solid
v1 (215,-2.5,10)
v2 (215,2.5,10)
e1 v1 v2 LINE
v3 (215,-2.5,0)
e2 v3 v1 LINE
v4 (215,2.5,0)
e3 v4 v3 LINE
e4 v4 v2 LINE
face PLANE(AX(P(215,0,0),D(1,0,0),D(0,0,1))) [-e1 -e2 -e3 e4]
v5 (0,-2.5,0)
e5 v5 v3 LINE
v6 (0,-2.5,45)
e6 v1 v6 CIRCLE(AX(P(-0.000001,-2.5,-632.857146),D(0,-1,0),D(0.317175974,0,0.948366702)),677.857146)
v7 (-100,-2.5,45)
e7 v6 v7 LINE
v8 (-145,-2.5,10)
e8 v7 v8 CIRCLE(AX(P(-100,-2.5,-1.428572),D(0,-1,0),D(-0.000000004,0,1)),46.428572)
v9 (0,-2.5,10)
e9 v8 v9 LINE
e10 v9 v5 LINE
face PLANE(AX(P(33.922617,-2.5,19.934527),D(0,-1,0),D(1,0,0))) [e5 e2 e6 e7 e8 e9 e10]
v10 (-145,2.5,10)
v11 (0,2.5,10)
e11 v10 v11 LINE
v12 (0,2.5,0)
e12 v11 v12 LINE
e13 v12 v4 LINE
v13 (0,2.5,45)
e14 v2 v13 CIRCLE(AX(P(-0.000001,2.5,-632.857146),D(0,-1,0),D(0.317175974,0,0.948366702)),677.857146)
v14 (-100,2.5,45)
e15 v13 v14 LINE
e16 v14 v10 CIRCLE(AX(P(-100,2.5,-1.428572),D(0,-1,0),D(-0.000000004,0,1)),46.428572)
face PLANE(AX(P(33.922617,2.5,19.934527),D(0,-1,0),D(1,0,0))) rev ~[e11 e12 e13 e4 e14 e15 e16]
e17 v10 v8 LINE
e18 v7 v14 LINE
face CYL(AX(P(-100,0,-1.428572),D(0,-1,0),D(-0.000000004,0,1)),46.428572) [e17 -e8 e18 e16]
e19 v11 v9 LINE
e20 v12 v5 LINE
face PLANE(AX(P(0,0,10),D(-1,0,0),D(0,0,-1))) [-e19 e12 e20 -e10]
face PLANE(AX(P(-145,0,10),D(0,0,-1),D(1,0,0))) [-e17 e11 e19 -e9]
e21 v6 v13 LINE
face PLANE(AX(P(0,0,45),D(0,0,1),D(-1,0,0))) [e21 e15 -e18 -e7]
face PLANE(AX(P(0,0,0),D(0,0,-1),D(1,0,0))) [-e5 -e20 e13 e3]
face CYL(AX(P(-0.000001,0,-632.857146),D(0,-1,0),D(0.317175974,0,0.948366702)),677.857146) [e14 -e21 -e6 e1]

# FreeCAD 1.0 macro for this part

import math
import FreeCAD as App
import Part
import Sketcher
from FreeCAD import Vector

doc = App.newDocument("Part")
body = doc.addObject("PartDesign::Body", "Body")

sketch1 = body.newObject("Sketcher::SketchObject", "Sketch")
sketch1.AttachmentSupport = (doc.getObject("XZ_Plane"), [""])
sketch1.MapMode = "FlatFace"
sketch1.addGeometry(Part.ArcOfCircle(Part.Circle(Vector(-100, -1, 0), Vector(0, 0, 1), 46), math.radians(90), math.radians(166)), False)
sketch1.addGeometry(Part.LineSegment(Vector(-145, 10, 0), Vector(0, 10, 0)), False)
sketch1.addGeometry(Part.LineSegment(Vector(0, 10, 0), Vector(0, 0, 0)), False)
sketch1.addGeometry(Part.LineSegment(Vector(0, 0, 0), Vector(215, 0, 0)), False)
sketch1.addGeometry(Part.LineSegment(Vector(215, 0, 0), Vector(215, 10, 0)), False)
sketch1.addGeometry(Part.ArcOfCircle(Part.Circle(Vector(0, -633, 0), Vector(0, 0, 1), 678), math.radians(71.51), math.radians(90)), False)
sketch1.addGeometry(Part.LineSegment(Vector(0, 45, 0), Vector(-100, 45, 0)), False)
sketch1.addConstraint(Sketcher.Constraint("Coincident", 0, 2, 1, 1))
sketch1.addConstraint(Sketcher.Constraint("Coincident", 1, 2, 2, 1))
sketch1.addConstraint(Sketcher.Constraint("Coincident", 2, 2, 3, 1))
sketch1.addConstraint(Sketcher.Constraint("Coincident", 3, 2, 4, 1))
sketch1.addConstraint(Sketcher.Constraint("Coincident", 4, 2, 5, 1))
sketch1.addConstraint(Sketcher.Constraint("Tangent", 5, 2, 6, 1))
sketch1.addConstraint(Sketcher.Constraint("Tangent", 6, 2, 0, 1))
sketch1.addConstraint(Sketcher.Constraint("Horizontal", 1))
sketch1.addConstraint(Sketcher.Constraint("Vertical", 2))
sketch1.addConstraint(Sketcher.Constraint("Horizontal", 3))
sketch1.addConstraint(Sketcher.Constraint("Vertical", 4))
sketch1.addConstraint(Sketcher.Constraint("Horizontal", 6))
sketch1.addConstraint(Sketcher.Constraint("Coincident", 2, 2, -1, 1))
sketch1.addConstraint(Sketcher.Constraint("PointOnObject", 5, 3, -2))
sketch1.addConstraint(Sketcher.Constraint("Horizontal", 1, 2, 4, 2))
sketch1.addConstraint(Sketcher.Constraint("DistanceX", 1, 1, 1, 2, 145.0))
sketch1.addConstraint(Sketcher.Constraint("DistanceX", 3, 1, 3, 2, 215.0))
sketch1.addConstraint(Sketcher.Constraint("DistanceX", 6, 2, 6, 1, 100.0))
sketch1.addConstraint(Sketcher.Constraint("DistanceY", 2, 2, 2, 1, 10.0))
sketch1.addConstraint(Sketcher.Constraint("DistanceY", -1, 1, 5, 2, 45.0))
pad1 = body.newObject("PartDesign::Pad", "Pad")
pad1.Profile = sketch1
pad1.Length = 5
pad1.Midplane = True

doc.recompute()
